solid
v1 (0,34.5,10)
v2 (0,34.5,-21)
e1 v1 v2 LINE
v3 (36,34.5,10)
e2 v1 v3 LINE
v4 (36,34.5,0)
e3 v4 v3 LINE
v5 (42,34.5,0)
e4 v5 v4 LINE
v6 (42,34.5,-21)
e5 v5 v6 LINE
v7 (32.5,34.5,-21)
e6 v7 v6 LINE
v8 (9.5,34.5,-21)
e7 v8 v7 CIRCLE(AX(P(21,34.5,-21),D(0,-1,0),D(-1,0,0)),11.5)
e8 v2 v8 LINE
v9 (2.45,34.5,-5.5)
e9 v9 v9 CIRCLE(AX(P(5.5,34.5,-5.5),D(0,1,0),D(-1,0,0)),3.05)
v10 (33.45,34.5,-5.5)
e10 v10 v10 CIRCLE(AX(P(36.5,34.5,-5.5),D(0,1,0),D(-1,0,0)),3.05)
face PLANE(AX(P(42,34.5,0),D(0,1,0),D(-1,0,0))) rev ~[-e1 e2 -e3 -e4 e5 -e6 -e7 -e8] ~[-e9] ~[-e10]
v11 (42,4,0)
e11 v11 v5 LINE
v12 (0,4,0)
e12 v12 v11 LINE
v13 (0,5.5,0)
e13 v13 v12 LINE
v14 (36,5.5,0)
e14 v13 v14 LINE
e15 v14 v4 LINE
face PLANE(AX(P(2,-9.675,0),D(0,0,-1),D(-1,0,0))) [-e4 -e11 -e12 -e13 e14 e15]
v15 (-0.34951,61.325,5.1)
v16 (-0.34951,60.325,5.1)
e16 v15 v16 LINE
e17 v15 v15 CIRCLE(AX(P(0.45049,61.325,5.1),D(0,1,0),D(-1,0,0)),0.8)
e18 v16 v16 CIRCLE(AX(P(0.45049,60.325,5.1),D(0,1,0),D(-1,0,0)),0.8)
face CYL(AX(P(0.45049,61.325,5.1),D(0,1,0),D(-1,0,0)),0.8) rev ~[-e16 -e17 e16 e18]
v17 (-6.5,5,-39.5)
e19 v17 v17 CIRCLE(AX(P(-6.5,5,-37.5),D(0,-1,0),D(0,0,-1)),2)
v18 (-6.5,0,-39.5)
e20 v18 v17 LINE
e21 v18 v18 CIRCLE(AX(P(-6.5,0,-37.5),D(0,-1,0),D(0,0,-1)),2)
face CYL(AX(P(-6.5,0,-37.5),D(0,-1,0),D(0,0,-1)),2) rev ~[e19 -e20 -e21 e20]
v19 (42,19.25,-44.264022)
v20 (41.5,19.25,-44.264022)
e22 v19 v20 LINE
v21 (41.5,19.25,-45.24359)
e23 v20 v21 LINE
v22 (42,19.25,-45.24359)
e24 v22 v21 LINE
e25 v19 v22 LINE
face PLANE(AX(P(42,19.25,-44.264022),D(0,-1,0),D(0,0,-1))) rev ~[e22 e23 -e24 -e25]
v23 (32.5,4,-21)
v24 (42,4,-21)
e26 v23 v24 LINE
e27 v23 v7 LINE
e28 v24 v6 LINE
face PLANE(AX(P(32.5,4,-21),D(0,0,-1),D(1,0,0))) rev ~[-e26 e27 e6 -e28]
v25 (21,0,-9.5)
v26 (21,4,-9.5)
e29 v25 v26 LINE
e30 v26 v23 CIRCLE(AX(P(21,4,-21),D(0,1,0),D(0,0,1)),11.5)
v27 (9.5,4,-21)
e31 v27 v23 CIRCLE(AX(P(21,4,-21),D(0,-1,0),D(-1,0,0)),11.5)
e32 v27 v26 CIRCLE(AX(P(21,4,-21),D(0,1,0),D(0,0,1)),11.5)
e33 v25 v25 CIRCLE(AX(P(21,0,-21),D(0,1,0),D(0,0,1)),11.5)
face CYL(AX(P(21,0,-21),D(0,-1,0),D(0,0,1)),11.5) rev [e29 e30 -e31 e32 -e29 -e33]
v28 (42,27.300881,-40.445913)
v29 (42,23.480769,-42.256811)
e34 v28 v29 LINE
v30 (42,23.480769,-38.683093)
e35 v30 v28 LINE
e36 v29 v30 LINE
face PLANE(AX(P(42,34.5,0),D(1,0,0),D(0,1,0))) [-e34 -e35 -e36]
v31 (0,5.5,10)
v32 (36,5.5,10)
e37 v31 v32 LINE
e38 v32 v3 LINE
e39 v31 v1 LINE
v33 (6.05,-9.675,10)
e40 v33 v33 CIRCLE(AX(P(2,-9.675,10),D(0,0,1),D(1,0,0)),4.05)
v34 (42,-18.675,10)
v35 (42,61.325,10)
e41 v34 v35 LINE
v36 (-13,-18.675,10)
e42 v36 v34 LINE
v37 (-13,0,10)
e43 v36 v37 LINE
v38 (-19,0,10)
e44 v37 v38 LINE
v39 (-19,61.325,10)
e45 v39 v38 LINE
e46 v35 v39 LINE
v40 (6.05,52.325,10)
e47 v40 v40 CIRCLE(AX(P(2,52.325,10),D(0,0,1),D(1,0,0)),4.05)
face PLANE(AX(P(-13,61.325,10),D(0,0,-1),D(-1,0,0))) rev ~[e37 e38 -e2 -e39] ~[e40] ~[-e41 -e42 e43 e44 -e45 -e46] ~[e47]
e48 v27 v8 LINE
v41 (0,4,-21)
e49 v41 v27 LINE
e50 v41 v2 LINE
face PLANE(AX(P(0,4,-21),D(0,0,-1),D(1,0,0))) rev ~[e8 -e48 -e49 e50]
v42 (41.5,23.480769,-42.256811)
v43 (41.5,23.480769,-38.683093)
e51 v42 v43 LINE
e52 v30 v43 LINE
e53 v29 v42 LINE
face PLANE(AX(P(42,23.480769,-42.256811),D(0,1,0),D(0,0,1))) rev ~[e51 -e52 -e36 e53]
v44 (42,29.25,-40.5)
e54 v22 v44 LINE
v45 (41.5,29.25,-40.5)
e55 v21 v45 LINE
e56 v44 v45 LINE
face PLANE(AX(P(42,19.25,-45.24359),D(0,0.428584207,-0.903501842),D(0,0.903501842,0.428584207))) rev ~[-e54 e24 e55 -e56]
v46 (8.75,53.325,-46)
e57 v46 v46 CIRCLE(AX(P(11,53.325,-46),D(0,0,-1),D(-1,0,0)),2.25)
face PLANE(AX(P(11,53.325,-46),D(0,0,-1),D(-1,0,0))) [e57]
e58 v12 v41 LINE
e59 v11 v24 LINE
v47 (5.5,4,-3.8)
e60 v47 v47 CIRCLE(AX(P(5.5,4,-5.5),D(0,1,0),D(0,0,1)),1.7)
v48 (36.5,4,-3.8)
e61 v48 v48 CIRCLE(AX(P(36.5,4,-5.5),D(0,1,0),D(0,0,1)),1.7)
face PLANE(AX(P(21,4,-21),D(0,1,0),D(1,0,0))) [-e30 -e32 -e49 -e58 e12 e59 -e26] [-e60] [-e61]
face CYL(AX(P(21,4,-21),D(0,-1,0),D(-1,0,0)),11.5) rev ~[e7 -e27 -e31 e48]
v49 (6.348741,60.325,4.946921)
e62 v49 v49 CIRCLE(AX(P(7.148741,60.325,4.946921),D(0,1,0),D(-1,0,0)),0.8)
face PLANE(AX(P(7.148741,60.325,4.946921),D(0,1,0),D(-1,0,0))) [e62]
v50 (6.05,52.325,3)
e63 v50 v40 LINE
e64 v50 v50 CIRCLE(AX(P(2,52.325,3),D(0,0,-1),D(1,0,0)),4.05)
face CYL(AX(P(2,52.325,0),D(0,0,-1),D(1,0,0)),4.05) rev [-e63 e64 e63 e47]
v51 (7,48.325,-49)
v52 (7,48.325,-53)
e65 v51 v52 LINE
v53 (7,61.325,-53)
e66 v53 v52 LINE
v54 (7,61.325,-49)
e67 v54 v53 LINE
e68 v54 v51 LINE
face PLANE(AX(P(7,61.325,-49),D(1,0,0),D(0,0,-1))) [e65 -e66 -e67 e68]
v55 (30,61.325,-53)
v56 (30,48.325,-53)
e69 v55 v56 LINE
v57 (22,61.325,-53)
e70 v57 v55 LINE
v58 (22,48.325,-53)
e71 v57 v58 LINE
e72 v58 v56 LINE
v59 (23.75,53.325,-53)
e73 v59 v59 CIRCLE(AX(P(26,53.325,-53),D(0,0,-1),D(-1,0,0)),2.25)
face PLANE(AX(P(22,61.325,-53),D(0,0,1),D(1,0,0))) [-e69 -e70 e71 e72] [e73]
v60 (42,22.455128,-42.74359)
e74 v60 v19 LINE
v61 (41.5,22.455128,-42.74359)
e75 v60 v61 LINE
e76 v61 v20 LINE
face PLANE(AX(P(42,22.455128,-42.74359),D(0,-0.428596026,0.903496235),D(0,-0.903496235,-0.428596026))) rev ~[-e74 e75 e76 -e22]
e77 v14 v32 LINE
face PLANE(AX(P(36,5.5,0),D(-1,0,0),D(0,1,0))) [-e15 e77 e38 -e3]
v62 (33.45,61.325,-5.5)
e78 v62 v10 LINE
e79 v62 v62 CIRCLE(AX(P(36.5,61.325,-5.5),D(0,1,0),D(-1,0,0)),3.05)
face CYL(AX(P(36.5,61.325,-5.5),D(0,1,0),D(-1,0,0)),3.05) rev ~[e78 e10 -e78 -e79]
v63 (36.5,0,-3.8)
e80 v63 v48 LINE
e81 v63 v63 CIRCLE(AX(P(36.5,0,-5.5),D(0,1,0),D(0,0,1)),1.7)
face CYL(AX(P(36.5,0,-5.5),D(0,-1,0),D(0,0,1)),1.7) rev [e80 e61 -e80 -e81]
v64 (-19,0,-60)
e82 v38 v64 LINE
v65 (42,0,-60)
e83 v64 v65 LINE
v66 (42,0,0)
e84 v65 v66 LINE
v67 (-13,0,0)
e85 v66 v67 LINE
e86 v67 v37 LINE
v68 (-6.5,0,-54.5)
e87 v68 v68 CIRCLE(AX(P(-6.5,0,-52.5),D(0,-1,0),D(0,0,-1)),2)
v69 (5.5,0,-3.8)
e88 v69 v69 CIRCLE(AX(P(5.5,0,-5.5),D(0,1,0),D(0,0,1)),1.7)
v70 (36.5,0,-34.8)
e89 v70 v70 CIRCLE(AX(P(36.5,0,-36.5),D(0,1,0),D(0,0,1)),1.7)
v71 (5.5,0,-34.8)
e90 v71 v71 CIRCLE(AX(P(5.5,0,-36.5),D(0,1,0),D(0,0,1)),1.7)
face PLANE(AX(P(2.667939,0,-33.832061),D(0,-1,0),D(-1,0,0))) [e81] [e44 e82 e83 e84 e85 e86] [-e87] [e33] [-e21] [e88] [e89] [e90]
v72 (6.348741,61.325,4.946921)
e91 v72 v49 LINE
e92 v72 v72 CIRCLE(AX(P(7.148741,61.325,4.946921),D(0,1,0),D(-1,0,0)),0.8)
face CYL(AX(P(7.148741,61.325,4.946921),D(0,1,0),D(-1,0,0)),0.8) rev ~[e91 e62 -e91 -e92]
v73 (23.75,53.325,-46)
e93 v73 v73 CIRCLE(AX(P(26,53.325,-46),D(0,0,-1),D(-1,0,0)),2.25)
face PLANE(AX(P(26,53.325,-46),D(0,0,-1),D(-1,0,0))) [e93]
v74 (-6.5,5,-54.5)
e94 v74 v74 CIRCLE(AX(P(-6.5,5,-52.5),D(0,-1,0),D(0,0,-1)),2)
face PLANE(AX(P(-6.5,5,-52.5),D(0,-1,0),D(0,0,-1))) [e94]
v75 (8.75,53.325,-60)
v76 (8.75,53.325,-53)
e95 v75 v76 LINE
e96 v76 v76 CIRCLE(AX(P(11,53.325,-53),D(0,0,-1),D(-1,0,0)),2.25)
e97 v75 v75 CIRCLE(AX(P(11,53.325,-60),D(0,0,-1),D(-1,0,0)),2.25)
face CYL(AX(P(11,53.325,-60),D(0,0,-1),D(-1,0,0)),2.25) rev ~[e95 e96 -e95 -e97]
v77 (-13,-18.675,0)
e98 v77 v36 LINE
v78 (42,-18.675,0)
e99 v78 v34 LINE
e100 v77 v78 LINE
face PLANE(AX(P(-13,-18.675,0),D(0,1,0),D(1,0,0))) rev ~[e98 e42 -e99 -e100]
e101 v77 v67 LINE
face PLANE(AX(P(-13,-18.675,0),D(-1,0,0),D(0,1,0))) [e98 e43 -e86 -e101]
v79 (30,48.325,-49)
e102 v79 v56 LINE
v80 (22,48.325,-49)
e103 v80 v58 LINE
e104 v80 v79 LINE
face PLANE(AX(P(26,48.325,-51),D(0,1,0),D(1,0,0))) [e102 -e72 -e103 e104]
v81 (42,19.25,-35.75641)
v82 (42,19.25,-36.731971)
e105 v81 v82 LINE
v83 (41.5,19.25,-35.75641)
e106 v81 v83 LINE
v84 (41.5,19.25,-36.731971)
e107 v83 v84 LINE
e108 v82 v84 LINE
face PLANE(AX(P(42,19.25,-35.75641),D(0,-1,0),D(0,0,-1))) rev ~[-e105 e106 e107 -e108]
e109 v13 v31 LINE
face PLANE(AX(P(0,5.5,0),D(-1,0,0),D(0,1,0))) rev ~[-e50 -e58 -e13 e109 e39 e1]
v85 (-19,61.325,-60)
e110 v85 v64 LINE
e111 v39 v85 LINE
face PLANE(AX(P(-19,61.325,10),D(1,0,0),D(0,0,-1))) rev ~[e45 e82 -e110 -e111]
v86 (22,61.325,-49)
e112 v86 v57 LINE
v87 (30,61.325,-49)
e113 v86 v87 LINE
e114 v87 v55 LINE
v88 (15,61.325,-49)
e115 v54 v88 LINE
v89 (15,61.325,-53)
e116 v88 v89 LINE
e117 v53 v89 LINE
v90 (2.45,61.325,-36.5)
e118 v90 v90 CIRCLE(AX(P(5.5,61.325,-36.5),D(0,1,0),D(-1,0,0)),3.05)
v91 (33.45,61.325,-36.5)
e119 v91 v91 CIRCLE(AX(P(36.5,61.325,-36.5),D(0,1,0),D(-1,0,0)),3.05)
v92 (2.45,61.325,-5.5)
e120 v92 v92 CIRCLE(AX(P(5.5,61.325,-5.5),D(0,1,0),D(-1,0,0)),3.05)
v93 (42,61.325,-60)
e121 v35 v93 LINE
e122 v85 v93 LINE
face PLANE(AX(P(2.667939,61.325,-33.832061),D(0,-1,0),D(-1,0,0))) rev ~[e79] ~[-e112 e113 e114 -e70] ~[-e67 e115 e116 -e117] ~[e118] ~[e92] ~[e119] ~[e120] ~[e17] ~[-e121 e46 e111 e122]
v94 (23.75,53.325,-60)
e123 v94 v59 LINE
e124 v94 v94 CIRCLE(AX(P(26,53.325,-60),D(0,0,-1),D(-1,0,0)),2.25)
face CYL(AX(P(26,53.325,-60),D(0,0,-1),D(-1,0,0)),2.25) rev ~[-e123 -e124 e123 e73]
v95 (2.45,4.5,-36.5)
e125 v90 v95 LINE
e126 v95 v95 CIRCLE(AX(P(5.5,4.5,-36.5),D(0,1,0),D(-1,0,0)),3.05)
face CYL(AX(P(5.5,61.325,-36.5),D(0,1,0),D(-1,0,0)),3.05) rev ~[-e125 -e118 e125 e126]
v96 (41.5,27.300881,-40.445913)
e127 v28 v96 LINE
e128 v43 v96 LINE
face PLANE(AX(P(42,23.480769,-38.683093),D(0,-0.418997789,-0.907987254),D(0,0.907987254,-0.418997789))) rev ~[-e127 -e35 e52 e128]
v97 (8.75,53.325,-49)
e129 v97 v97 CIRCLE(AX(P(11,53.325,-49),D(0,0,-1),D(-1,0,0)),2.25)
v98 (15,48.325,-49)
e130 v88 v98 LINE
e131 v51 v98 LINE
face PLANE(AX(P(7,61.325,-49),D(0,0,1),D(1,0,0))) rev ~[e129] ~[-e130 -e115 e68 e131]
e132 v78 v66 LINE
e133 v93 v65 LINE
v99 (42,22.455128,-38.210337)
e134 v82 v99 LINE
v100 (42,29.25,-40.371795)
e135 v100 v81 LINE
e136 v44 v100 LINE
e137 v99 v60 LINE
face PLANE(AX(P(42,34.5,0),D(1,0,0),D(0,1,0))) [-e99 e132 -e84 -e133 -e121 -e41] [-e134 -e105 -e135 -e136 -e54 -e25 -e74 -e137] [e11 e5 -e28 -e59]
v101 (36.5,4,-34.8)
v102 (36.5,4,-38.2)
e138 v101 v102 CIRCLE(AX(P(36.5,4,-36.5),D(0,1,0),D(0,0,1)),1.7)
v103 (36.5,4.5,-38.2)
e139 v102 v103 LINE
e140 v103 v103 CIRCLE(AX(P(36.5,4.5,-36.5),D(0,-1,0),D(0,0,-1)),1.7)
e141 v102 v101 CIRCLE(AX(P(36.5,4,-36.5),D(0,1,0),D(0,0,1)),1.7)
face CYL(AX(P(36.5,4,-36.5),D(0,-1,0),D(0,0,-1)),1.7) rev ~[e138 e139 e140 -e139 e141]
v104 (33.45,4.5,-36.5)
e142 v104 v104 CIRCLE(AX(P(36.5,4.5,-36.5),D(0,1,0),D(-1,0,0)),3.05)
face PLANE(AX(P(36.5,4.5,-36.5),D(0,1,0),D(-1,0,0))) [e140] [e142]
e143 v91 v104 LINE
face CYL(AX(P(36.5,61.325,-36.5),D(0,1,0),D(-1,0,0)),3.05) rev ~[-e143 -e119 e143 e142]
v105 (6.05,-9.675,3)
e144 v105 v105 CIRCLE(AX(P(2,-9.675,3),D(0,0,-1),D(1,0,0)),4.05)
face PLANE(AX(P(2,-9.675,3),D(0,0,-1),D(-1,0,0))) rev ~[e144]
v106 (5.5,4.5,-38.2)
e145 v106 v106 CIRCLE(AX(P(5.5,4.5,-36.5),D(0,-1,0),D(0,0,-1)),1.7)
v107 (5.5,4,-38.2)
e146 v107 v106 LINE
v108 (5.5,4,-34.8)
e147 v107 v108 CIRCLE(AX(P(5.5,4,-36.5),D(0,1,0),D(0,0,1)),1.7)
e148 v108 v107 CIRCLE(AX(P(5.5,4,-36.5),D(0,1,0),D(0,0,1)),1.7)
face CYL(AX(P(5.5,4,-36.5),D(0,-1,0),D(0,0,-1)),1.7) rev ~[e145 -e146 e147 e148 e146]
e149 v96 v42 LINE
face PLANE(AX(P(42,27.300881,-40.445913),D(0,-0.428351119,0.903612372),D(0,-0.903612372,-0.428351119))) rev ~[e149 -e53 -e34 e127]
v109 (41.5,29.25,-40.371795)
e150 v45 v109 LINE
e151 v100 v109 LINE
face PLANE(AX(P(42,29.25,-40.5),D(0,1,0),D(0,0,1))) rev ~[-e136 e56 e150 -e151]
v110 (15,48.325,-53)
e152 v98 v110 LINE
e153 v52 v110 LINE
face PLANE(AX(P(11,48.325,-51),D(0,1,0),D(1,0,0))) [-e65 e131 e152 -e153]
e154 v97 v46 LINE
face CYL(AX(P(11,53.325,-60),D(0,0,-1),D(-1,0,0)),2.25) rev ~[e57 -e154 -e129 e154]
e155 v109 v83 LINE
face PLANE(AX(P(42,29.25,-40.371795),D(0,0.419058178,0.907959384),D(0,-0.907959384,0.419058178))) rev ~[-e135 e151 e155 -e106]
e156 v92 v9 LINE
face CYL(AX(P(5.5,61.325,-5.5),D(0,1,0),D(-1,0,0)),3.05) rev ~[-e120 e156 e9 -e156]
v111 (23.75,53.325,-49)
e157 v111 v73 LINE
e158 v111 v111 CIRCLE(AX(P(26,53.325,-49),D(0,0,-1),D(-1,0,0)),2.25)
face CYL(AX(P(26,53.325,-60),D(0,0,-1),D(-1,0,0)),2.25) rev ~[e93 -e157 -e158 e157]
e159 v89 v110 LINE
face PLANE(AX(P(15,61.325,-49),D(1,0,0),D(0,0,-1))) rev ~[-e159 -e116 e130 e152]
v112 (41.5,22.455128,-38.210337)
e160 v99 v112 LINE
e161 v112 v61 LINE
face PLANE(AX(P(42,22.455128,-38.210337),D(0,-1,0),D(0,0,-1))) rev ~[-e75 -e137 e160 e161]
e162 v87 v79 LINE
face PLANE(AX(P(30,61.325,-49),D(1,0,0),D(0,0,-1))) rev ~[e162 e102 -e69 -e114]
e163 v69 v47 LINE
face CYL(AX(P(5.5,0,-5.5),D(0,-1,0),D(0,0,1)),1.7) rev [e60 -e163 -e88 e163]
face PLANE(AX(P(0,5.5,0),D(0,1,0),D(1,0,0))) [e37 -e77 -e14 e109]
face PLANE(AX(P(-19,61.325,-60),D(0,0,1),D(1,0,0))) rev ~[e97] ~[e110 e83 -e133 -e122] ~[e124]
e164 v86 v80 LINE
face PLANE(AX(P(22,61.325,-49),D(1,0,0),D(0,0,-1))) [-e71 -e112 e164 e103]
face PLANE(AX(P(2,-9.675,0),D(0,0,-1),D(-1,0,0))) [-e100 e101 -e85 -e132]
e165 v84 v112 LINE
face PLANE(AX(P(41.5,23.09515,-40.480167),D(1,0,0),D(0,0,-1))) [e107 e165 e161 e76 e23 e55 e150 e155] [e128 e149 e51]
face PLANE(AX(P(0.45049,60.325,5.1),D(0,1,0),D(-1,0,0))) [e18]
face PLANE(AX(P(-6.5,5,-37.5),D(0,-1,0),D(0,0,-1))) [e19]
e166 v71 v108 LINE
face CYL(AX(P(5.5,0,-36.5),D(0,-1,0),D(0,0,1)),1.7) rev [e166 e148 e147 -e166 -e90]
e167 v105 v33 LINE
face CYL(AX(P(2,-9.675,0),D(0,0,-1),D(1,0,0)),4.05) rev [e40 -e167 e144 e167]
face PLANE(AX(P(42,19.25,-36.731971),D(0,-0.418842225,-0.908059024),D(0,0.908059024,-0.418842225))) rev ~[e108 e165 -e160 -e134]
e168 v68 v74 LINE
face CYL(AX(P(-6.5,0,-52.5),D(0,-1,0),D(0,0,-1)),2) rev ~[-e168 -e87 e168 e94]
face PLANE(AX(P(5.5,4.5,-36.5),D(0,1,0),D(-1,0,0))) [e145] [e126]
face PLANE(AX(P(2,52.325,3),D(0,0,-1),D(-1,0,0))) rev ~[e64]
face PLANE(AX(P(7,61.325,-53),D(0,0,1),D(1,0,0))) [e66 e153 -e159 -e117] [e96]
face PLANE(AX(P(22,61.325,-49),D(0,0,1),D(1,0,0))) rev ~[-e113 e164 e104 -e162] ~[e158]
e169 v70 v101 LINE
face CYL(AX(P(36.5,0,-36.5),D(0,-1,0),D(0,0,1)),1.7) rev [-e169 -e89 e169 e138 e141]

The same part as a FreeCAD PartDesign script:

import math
import FreeCAD as App
import Part
import Sketcher
from FreeCAD import Vector


def add_polygon(sketch, points):
    """Adds a closed chain of lines whose ends are joined by coincident constraints."""
    first, n = sketch.GeometryCount, len(points)
    for a, b in zip(points, points[1:] + points[:1]):
        sketch.addGeometry(Part.LineSegment(App.Vector(*a, 0), App.Vector(*b, 0)), False)
    for i in range(n):
        sketch.addConstraint(Sketcher.Constraint("Coincident", first + i, 2, first + (i + 1) % n, 1))

doc = App.newDocument("Part")
params = doc.addObject("Spreadsheet::Sheet", "Params")
for row, (alias, value) in enumerate([
    ("sketch1_diameter", "23 mm"),
    ("sketch1_diameter2", "3.4 mm"),
    ("sketch1_width", "42 mm"),
    ("pad1_length", "4 mm"),
    ("sketch2_diameter", "8.1 mm"),
    ("sketch2_width", "55 mm"),
    ("sketch2_width2", "36 mm"),
    ("sketch2_height", "80 mm"),
    ("sketch2_height2", "29 mm"),
    ("pad2_length", "10 mm"),
    ("sketch3_radius", "11.5 mm"),
    ("sketch3_width", "42 mm"),
    ("sketch3_height", "21 mm"),
    ("pad3_length", "30.5 mm"),
    ("sketch4_width", "42 mm"),
    ("pad4_length", "42 mm"),
    ("sketch5_diameter", "3.4 mm"),
    ("sketch6_diameter", "6.1 mm"),
    ("pocket2_length", "56.825 mm"),
    ("sketch7_diameter", "8.1 mm"),
    ("pad5_length", "3 mm"),
    ("sketch8_diameter", "1.6 mm"),
    ("pocket3_length", "1 mm"),
    ("sketch9_width", "6 mm"),
    ("sketch9_width2", "13 mm"),
    ("sketch9_width3", "42 mm"),
    ("sketch9_height", "10 mm"),
    ("sketch9_height2", "18 mm"),
    ("pad6_length", "61.325 mm"),
    ("sketch10_diameter", "4 mm"),
    ("pocket4_length", "5 mm"),
    ("sketch11_diameter", "4.5 mm"),
    ("pocket5_length", "14 mm"),
    ("sketch12_width", "8 mm"),
    ("sketch12_height", "4 mm"),
    ("pocket6_length", "13 mm"),
    ("pocket7_length", "0.5 mm"),
], start=1):
    params.set(f"A{row}", alias)
    params.set(f"B{row}", "=" + value)
    params.setAlias(f"B{row}", alias)

body = doc.addObject("PartDesign::Body", "Body")

# Sketch on XZ plane
sketch1 = doc.addObject("Sketcher::SketchObject", "Sketch")
body.addObject(sketch1)
sketch1.AttachmentSupport = (doc.XZ_Plane, [""])
sketch1.MapMode = "FlatFace"
add_polygon(sketch1, [(0, -42), (0, 0), (42, 0), (42, -42)])  # lines 0-3
sketch1.addGeometry(Part.Circle(Vector(5.5, -5.5, 0), Vector(0, 0, 1), 1.7), False)  # 4
sketch1.addGeometry(Part.Circle(Vector(36.5, -5.5, 0), Vector(0, 0, 1), 1.7), False)  # 5
sketch1.addGeometry(Part.Circle(Vector(5.5, -36.5, 0), Vector(0, 0, 1), 1.7), False)  # 6
sketch1.addGeometry(Part.Circle(Vector(21, -21, 0), Vector(0, 0, 1), 11.5), False)  # 7
sketch1.addGeometry(Part.Circle(Vector(36.5, -36.5, 0), Vector(0, 0, 1), 1.7), False)  # 8
sketch1.addConstraint(Sketcher.Constraint("Vertical", 0))
sketch1.addConstraint(Sketcher.Constraint("Horizontal", 1))
sketch1.addConstraint(Sketcher.Constraint("Vertical", 2))
sketch1.addConstraint(Sketcher.Constraint("Horizontal", 3))
sketch1.addConstraint(Sketcher.Constraint("Coincident", 0, 2, -1, 1))
sketch1.addConstraint(Sketcher.Constraint("Equal", 4, 5))
sketch1.addConstraint(Sketcher.Constraint("Equal", 5, 6))
sketch1.addConstraint(Sketcher.Constraint("Equal", 6, 8))
sketch1.addConstraint(Sketcher.Constraint("Horizontal", 4, 3, 5, 3))
sketch1.addConstraint(Sketcher.Constraint("Horizontal", 6, 3, 8, 3))
sketch1.addConstraint(Sketcher.Constraint("Vertical", 4, 3, 6, 3))
sketch1.addConstraint(Sketcher.Constraint("Vertical", 5, 3, 8, 3))
sketch1.addConstraint(Sketcher.Constraint("Equal", 3, 0))
sketch1.addConstraint(Sketcher.Constraint("Diameter", 7, 23.0))
sketch1.addConstraint(Sketcher.Constraint("Diameter", 4, 3.4))
sketch1.addConstraint(Sketcher.Constraint("DistanceX", 1, 1, 1, 2, 42.0))
sketch1.addConstraint(Sketcher.Constraint("DistanceX", -1, 1, 7, 3, 21.0))
sketch1.addConstraint(Sketcher.Constraint("DistanceY", 7, 3, -1, 1, 21.0))
sketch1.addConstraint(Sketcher.Constraint("DistanceX", 4, 3, 5, 3, 31.0))
sketch1.addConstraint(Sketcher.Constraint("DistanceY", 6, 3, 4, 3, 31.0))
sketch1.addConstraint(Sketcher.Constraint("DistanceX", -1, 1, 4, 3, 5.5))
sketch1.addConstraint(Sketcher.Constraint("DistanceY", 4, 3, -1, 1, 5.5))
sketch1.setExpression("Constraints[17]", "Params.sketch1_diameter")
sketch1.setExpression("Constraints[18]", "Params.sketch1_diameter2")
sketch1.setExpression("Constraints[19]", "Params.sketch1_width")
pad1 = doc.addObject("PartDesign::Pad", "Pad")
body.addObject(pad1)
pad1.Profile = sketch1
pad1.setExpression("Length", "Params.pad1_length")
pad1.Reversed = True

# Sketch on XY plane
sketch2 = doc.addObject("Sketcher::SketchObject", "Sketch001")
body.addObject(sketch2)
sketch2.AttachmentSupport = (doc.XY_Plane, [""])
sketch2.MapMode = "FlatFace"
add_polygon(sketch2, [(-13, 61.3), (-13, -18.7), (42, -18.7), (42, 61.3)])  # lines 0-3
sketch2.addGeometry(Part.Circle(Vector(2, -9.7, 0), Vector(0, 0, 1), 4), False)  # 4
add_polygon(sketch2, [(36, 5.5), (0, 5.5), (0, 34.5), (36, 34.5)])  # lines 5-8
sketch2.addGeometry(Part.Circle(Vector(2, 52.3, 0), Vector(0, 0, 1), 4), False)  # 9
sketch2.addConstraint(Sketcher.Constraint("Vertical", 0))
sketch2.addConstraint(Sketcher.Constraint("Horizontal", 1))
sketch2.addConstraint(Sketcher.Constraint("Vertical", 2))
sketch2.addConstraint(Sketcher.Constraint("Horizontal", 3))
sketch2.addConstraint(Sketcher.Constraint("Horizontal", 5))
sketch2.addConstraint(Sketcher.Constraint("Vertical", 6))
sketch2.addConstraint(Sketcher.Constraint("Horizontal", 7))
sketch2.addConstraint(Sketcher.Constraint("Vertical", 8))
sketch2.addConstraint(Sketcher.Constraint("Equal", 4, 9))
sketch2.addConstraint(Sketcher.Constraint("PointOnObject", 5, 2, -2))
sketch2.addConstraint(Sketcher.Constraint("Vertical", 4, 3, 9, 3))
sketch2.addConstraint(Sketcher.Constraint("Diameter", 4, 8.1))
sketch2.addConstraint(Sketcher.Constraint("DistanceX", 1, 1, 1, 2, 55.0))
sketch2.addConstraint(Sketcher.Constraint("DistanceX", 5, 2, 5, 1, 36.0))
sketch2.addConstraint(Sketcher.Constraint("DistanceY", 0, 2, 0, 1, 80.0))
sketch2.addConstraint(Sketcher.Constraint("DistanceY", 6, 1, 6, 2, 29.0))
sketch2.addConstraint(Sketcher.Constraint("DistanceX", -1, 1, 4, 3, 2.0))
sketch2.addConstraint(Sketcher.Constraint("DistanceX", 0, 2, -1, 1, 13.0))
sketch2.addConstraint(Sketcher.Constraint("DistanceY", 4, 3, 9, 3, 62.0))
sketch2.addConstraint(Sketcher.Constraint("DistanceY", 0, 2, 4, 3, 9.0))
sketch2.addConstraint(Sketcher.Constraint("DistanceY", -1, 1, 5, 2, 5.5))
sketch2.addConstraint(Sketcher.Constraint("DistanceY", 4, 3, -1, 1, 9.675))
sketch2.setExpression("Constraints[19]", "Params.sketch2_diameter")
sketch2.setExpression("Constraints[20]", "Params.sketch2_width")
sketch2.setExpression("Constraints[21]", "Params.sketch2_width2")
sketch2.setExpression("Constraints[22]", "Params.sketch2_height")
sketch2.setExpression("Constraints[23]", "Params.sketch2_height2")
pad2 = doc.addObject("PartDesign::Pad", "Pad001")
body.addObject(pad2)
pad2.Profile = sketch2
pad2.setExpression("Length", "Params.pad2_length")

# Sketch on XZ plane
sketch3 = doc.addObject("Sketcher::SketchObject", "Sketch002")
body.addObject(sketch3)
sketch3.AttachmentSupport = (doc.XZ_Plane, [""])
sketch3.MapMode = "FlatFace"
sketch3.AttachmentOffset = App.Placement(Vector(0, 0, -4), App.Rotation())
sketch3.addGeometry(Part.LineSegment(Vector(0, -21, 0), Vector(10, -21, 0)), False)
sketch3.addGeometry(Part.ArcOfCircle(Part.Circle(Vector(21, -21, 0), Vector(0, 0, 1), 12), math.radians(180), math.radians(360)), False)
sketch3.addGeometry(Part.LineSegment(Vector(32, -21, 0), Vector(42, -21, 0)), False)
sketch3.addGeometry(Part.LineSegment(Vector(42, -21, 0), Vector(42, -42, 0)), False)
sketch3.addGeometry(Part.LineSegment(Vector(42, -42, 0), Vector(0, -42, 0)), False)
sketch3.addGeometry(Part.LineSegment(Vector(0, -42, 0), Vector(0, -21, 0)), False)
sketch3.addConstraint(Sketcher.Constraint("Coincident", 0, 2, 1, 1))
sketch3.addConstraint(Sketcher.Constraint("Coincident", 1, 2, 2, 1))
sketch3.addConstraint(Sketcher.Constraint("Coincident", 2, 2, 3, 1))
sketch3.addConstraint(Sketcher.Constraint("Coincident", 3, 2, 4, 1))
sketch3.addConstraint(Sketcher.Constraint("Coincident", 4, 2, 5, 1))
sketch3.addConstraint(Sketcher.Constraint("Coincident", 5, 2, 0, 1))
sketch3.addConstraint(Sketcher.Constraint("Horizontal", 0))
sketch3.addConstraint(Sketcher.Constraint("Horizontal", 2))
sketch3.addConstraint(Sketcher.Constraint("Vertical", 3))
sketch3.addConstraint(Sketcher.Constraint("Horizontal", 4))
sketch3.addConstraint(Sketcher.Constraint("Vertical", 5))
sketch3.addConstraint(Sketcher.Constraint("PointOnObject", 4, 2, -2))
sketch3.addConstraint(Sketcher.Constraint("Horizontal", 1, 3, 0, 2))
sketch3.addConstraint(Sketcher.Constraint("Horizontal", 0, 2, 1, 2))
sketch3.addConstraint(Sketcher.Constraint("Equal", 0, 2))
sketch3.addConstraint(Sketcher.Constraint("Radius", 1, 11.5))
sketch3.addConstraint(Sketcher.Constraint("DistanceX", 4, 2, 4, 1, 42.0))
sketch3.addConstraint(Sketcher.Constraint("DistanceY", 3, 2, 3, 1, 21.0))
sketch3.addConstraint(Sketcher.Constraint("DistanceY", 1, 3, -1, 1, 21.0))
sketch3.setExpression("Constraints[15]", "Params.sketch3_radius")
sketch3.setExpression("Constraints[16]", "Params.sketch3_width")
sketch3.setExpression("Constraints[17]", "Params.sketch3_height")
pad3 = doc.addObject("PartDesign::Pad", "Pad002")
body.addObject(pad3)
pad3.Profile = sketch3
pad3.setExpression("Length", "Params.pad3_length")
pad3.Reversed = True

# Sketch on XY plane
sketch4 = doc.addObject("Sketcher::SketchObject", "Sketch003")
body.addObject(sketch4)
sketch4.AttachmentSupport = (doc.XY_Plane, [""])
sketch4.MapMode = "FlatFace"
add_polygon(sketch4, [(42, 61), (42, 34), (0, 34), (0, 61)])  # lines 0-3
sketch4.addConstraint(Sketcher.Constraint("Vertical", 0))
sketch4.addConstraint(Sketcher.Constraint("Horizontal", 1))
sketch4.addConstraint(Sketcher.Constraint("Vertical", 2))
sketch4.addConstraint(Sketcher.Constraint("Horizontal", 3))
sketch4.addConstraint(Sketcher.Constraint("PointOnObject", 1, 2, -2))
sketch4.addConstraint(Sketcher.Constraint("DistanceX", 1, 2, 1, 1, 42.0))
sketch4.addConstraint(Sketcher.Constraint("DistanceY", -1, 1, 0, 2, 34.5))
sketch4.addConstraint(Sketcher.Constraint("DistanceY", 0, 2, 0, 1, 26.825))
sketch4.setExpression("Constraints[9]", "Params.sketch4_width")
pad4 = doc.addObject("PartDesign::Pad", "Pad003")
body.addObject(pad4)
pad4.Profile = sketch4
pad4.setExpression("Length", "Params.pad4_length")
pad4.Reversed = True

# Sketch on XZ plane
sketch5 = doc.addObject("Sketcher::SketchObject", "Sketch004")
body.addObject(sketch5)
sketch5.AttachmentSupport = (doc.XZ_Plane, [""])
sketch5.MapMode = "FlatFace"
sketch5.AttachmentOffset = App.Placement(Vector(0, 0, -4), App.Rotation())
sketch5.addGeometry(Part.Circle(Vector(5.5, -36.5, 0), Vector(0, 0, 1), 1.7), False)
sketch5.addGeometry(Part.Circle(Vector(36.5, -36.5, 0), Vector(0, 0, 1), 1.7), False)
sketch5.addConstraint(Sketcher.Constraint("Equal", 0, 1))
sketch5.addConstraint(Sketcher.Constraint("Horizontal", 0, 3, 1, 3))
sketch5.addConstraint(Sketcher.Constraint("Diameter", 0, 3.4))
sketch5.addConstraint(Sketcher.Constraint("DistanceX", 0, 3, 1, 3, 31.0))
sketch5.addConstraint(Sketcher.Constraint("DistanceX", -1, 1, 0, 3, 5.5))
sketch5.addConstraint(Sketcher.Constraint("DistanceY", 0, 3, -1, 1, 36.5))
sketch5.setExpression("Constraints[2]", "Params.sketch5_diameter")
pocket1 = doc.addObject("PartDesign::Pocket", "Pocket")
body.addObject(pocket1)
pocket1.Profile = sketch5
pocket1.Type = "ThroughAll"

# Sketch on XZ plane
sketch6 = doc.addObject("Sketcher::SketchObject", "Sketch005")
body.addObject(sketch6)
sketch6.AttachmentSupport = (doc.XZ_Plane, [""])
sketch6.MapMode = "FlatFace"
sketch6.AttachmentOffset = App.Placement(Vector(0, 0, -61.325), App.Rotation())
sketch6.addGeometry(Part.Circle(Vector(5.5, -36.5, 0), Vector(0, 0, 1), 3), False)
sketch6.addGeometry(Part.Circle(Vector(36.5, -36.5, 0), Vector(0, 0, 1), 3), False)
sketch6.addGeometry(Part.Circle(Vector(5.5, -5.5, 0), Vector(0, 0, 1), 3), False)
sketch6.addGeometry(Part.Circle(Vector(36.5, -5.5, 0), Vector(0, 0, 1), 3), False)
sketch6.addConstraint(Sketcher.Constraint("Equal", 0, 1))
sketch6.addConstraint(Sketcher.Constraint("Equal", 1, 2))
sketch6.addConstraint(Sketcher.Constraint("Equal", 2, 3))
sketch6.addConstraint(Sketcher.Constraint("Horizontal", 0, 3, 1, 3))
sketch6.addConstraint(Sketcher.Constraint("Horizontal", 2, 3, 3, 3))
sketch6.addConstraint(Sketcher.Constraint("Vertical", 0, 3, 2, 3))
sketch6.addConstraint(Sketcher.Constraint("Vertical", 1, 3, 3, 3))
sketch6.addConstraint(Sketcher.Constraint("Diameter", 0, 6.1))
sketch6.addConstraint(Sketcher.Constraint("DistanceX", 0, 3, 1, 3, 31.0))
sketch6.addConstraint(Sketcher.Constraint("DistanceY", 0, 3, 2, 3, 31.0))
sketch6.addConstraint(Sketcher.Constraint("DistanceX", -1, 1, 0, 3, 5.5))
sketch6.addConstraint(Sketcher.Constraint("DistanceY", 0, 3, -1, 1, 36.5))
sketch6.setExpression("Constraints[7]", "Params.sketch6_diameter")
pocket2 = doc.addObject("PartDesign::Pocket", "Pocket001")
body.addObject(pocket2)
pocket2.Profile = sketch6
pocket2.setExpression("Length", "Params.pocket2_length")
pocket2.Reversed = True

# Sketch on XY plane
sketch7 = doc.addObject("Sketcher::SketchObject", "Sketch006")
body.addObject(sketch7)
sketch7.AttachmentSupport = (doc.XY_Plane, [""])
sketch7.MapMode = "FlatFace"
sketch7.addGeometry(Part.Circle(Vector(2, -9.7, 0), Vector(0, 0, 1), 4), False)
sketch7.addGeometry(Part.Circle(Vector(2, 52.3, 0), Vector(0, 0, 1), 4), False)
sketch7.addConstraint(Sketcher.Constraint("Equal", 0, 1))
sketch7.addConstraint(Sketcher.Constraint("Vertical", 0, 3, 1, 3))
sketch7.addConstraint(Sketcher.Constraint("Diameter", 0, 8.1))
sketch7.addConstraint(Sketcher.Constraint("DistanceX", -1, 1, 0, 3, 2.0))
sketch7.addConstraint(Sketcher.Constraint("DistanceY", 0, 3, 1, 3, 62.0))
sketch7.addConstraint(Sketcher.Constraint("DistanceY", 0, 3, -1, 1, 9.675))
sketch7.setExpression("Constraints[2]", "Params.sketch7_diameter")
pad5 = doc.addObject("PartDesign::Pad", "Pad004")
body.addObject(pad5)
pad5.Profile = sketch7
pad5.setExpression("Length", "Params.pad5_length")

# Sketch on XZ plane
sketch8 = doc.addObject("Sketcher::SketchObject", "Sketch007")
body.addObject(sketch8)
sketch8.AttachmentSupport = (doc.XZ_Plane, [""])
sketch8.MapMode = "FlatFace"
sketch8.AttachmentOffset = App.Placement(Vector(0, 0, -61.325), App.Rotation())
sketch8.addGeometry(Part.Circle(Vector(0.5, 5.1, 0), Vector(0, 0, 1), 0.8), False)
sketch8.addGeometry(Part.Circle(Vector(7.1, 4.9, 0), Vector(0, 0, 1), 0.8), False)
sketch8.addConstraint(Sketcher.Constraint("Equal", 0, 1))
sketch8.addConstraint(Sketcher.Constraint("Diameter", 0, 1.6))
sketch8.addConstraint(Sketcher.Constraint("DistanceY", -1, 1, 0, 3, 5.1))
sketch8.addConstraint(Sketcher.Constraint("DistanceX", -1, 1, 0, 3, 0.45049))
sketch8.addConstraint(Sketcher.Constraint("DistanceX", -1, 1, 1, 3, 7.148741))
sketch8.addConstraint(Sketcher.Constraint("DistanceY", -1, 1, 1, 3, 4.946921))
sketch8.setExpression("Constraints[1]", "Params.sketch8_diameter")
pocket3 = doc.addObject("PartDesign::Pocket", "Pocket002")
body.addObject(pocket3)
pocket3.Profile = sketch8
pocket3.setExpression("Length", "Params.pocket3_length")
pocket3.Reversed = True

# Sketch on XZ plane
sketch9 = doc.addObject("Sketcher::SketchObject", "Sketch008")
body.addObject(sketch9)
sketch9.AttachmentSupport = (doc.XZ_Plane, [""])
sketch9.MapMode = "FlatFace"
sketch9.AttachmentOffset = App.Placement(Vector(0, 0, -61.325), App.Rotation())
add_polygon(sketch9, [(-19, 10), (-13, 10), (-13, 0), (0, 0), (0, -42), (42, -42), (42, -60), (-19, -60)])  # lines 0-7
sketch9.addConstraint(Sketcher.Constraint("Horizontal", 0))
sketch9.addConstraint(Sketcher.Constraint("Vertical", 1))
sketch9.addConstraint(Sketcher.Constraint("Horizontal", 2))
sketch9.addConstraint(Sketcher.Constraint("Vertical", 3))
sketch9.addConstraint(Sketcher.Constraint("Horizontal", 4))
sketch9.addConstraint(Sketcher.Constraint("Vertical", 5))
sketch9.addConstraint(Sketcher.Constraint("Horizontal", 6))
sketch9.addConstraint(Sketcher.Constraint("Vertical", 7))
sketch9.addConstraint(Sketcher.Constraint("Coincident", 2, 2, -1, 1))
sketch9.addConstraint(Sketcher.Constraint("Equal", 4, 3))
sketch9.addConstraint(Sketcher.Constraint("DistanceX", 0, 1, 0, 2, 6.0))
sketch9.addConstraint(Sketcher.Constraint("DistanceX", 2, 1, 2, 2, 13.0))
sketch9.addConstraint(Sketcher.Constraint("DistanceX", 4, 1, 4, 2, 42.0))
sketch9.addConstraint(Sketcher.Constraint("DistanceY", 1, 2, 1, 1, 10.0))
sketch9.addConstraint(Sketcher.Constraint("DistanceY", 5, 2, 5, 1, 18.0))
sketch9.setExpression("Constraints[18]", "Params.sketch9_width")
sketch9.setExpression("Constraints[19]", "Params.sketch9_width2")
sketch9.setExpression("Constraints[20]", "Params.sketch9_width3")
sketch9.setExpression("Constraints[21]", "Params.sketch9_height")
sketch9.setExpression("Constraints[22]", "Params.sketch9_height2")
pad6 = doc.addObject("PartDesign::Pad", "Pad005")
body.addObject(pad6)
pad6.Profile = sketch9
pad6.setExpression("Length", "Params.pad6_length")

# Sketch on XZ plane
sketch10 = doc.addObject("Sketcher::SketchObject", "Sketch009")
body.addObject(sketch10)
sketch10.AttachmentSupport = (doc.XZ_Plane, [""])
sketch10.MapMode = "FlatFace"
sketch10.addGeometry(Part.Circle(Vector(-6.5, -52.5, 0), Vector(0, 0, 1), 2), False)
sketch10.addGeometry(Part.Circle(Vector(-6.5, -37.5, 0), Vector(0, 0, 1), 2), False)
sketch10.addConstraint(Sketcher.Constraint("Equal", 0, 1))
sketch10.addConstraint(Sketcher.Constraint("Vertical", 0, 3, 1, 3))
sketch10.addConstraint(Sketcher.Constraint("Diameter", 0, 4.0))
sketch10.addConstraint(Sketcher.Constraint("DistanceY", 0, 3, 1, 3, 15.0))
sketch10.addConstraint(Sketcher.Constraint("DistanceX", 0, 3, -1, 1, 6.5))
sketch10.addConstraint(Sketcher.Constraint("DistanceY", 0, 3, -1, 1, 52.5))
sketch10.setExpression("Constraints[2]", "Params.sketch10_diameter")
pocket4 = doc.addObject("PartDesign::Pocket", "Pocket003")
body.addObject(pocket4)
pocket4.Profile = sketch10
pocket4.setExpression("Length", "Params.pocket4_length")

# Sketch on XY plane
sketch11 = doc.addObject("Sketcher::SketchObject", "Sketch010")
body.addObject(sketch11)
sketch11.AttachmentSupport = (doc.XY_Plane, [""])
sketch11.MapMode = "FlatFace"
sketch11.AttachmentOffset = App.Placement(Vector(0, 0, -60), App.Rotation())
sketch11.addGeometry(Part.Circle(Vector(26, 53.3, 0), Vector(0, 0, 1), 2.2), False)
sketch11.addGeometry(Part.Circle(Vector(11, 53.3, 0), Vector(0, 0, 1), 2.2), False)
sketch11.addConstraint(Sketcher.Constraint("Equal", 0, 1))
sketch11.addConstraint(Sketcher.Constraint("Horizontal", 0, 3, 1, 3))
sketch11.addConstraint(Sketcher.Constraint("Diameter", 0, 4.5))
sketch11.addConstraint(Sketcher.Constraint("DistanceX", -1, 1, 0, 3, 26.0))
sketch11.addConstraint(Sketcher.Constraint("DistanceX", -1, 1, 1, 3, 11.0))
sketch11.addConstraint(Sketcher.Constraint("DistanceY", -1, 1, 0, 3, 53.325))
sketch11.setExpression("Constraints[2]", "Params.sketch11_diameter")
pocket5 = doc.addObject("PartDesign::Pocket", "Pocket004")
body.addObject(pocket5)
pocket5.Profile = sketch11
pocket5.setExpression("Length", "Params.pocket5_length")
pocket5.Reversed = True

# Sketch on XZ plane
sketch12 = doc.addObject("Sketcher::SketchObject", "Sketch011")
body.addObject(sketch12)
sketch12.AttachmentSupport = (doc.XZ_Plane, [""])
sketch12.MapMode = "FlatFace"
sketch12.AttachmentOffset = App.Placement(Vector(0, 0, -61.325), App.Rotation())
add_polygon(sketch12, [(7, -53), (7, -49), (15, -49), (15, -53)])  # lines 0-3
add_polygon(sketch12, [(22, -53), (22, -49), (30, -49), (30, -53)])  # lines 4-7
sketch12.addConstraint(Sketcher.Constraint("Vertical", 0))
sketch12.addConstraint(Sketcher.Constraint("Horizontal", 1))
sketch12.addConstraint(Sketcher.Constraint("Vertical", 2))
sketch12.addConstraint(Sketcher.Constraint("Horizontal", 3))
sketch12.addConstraint(Sketcher.Constraint("Vertical", 4))
sketch12.addConstraint(Sketcher.Constraint("Horizontal", 5))
sketch12.addConstraint(Sketcher.Constraint("Vertical", 6))
sketch12.addConstraint(Sketcher.Constraint("Horizontal", 7))
sketch12.addConstraint(Sketcher.Constraint("Horizontal", 1, 2, 4, 2))
sketch12.addConstraint(Sketcher.Constraint("Horizontal", 3, 2, 6, 2))
sketch12.addConstraint(Sketcher.Constraint("Equal", 3, 5))
sketch12.addConstraint(Sketcher.Constraint("DistanceX", 1, 1, 1, 2, 8.0))
sketch12.addConstraint(Sketcher.Constraint("DistanceY", 0, 1, 0, 2, 4.0))
sketch12.addConstraint(Sketcher.Constraint("DistanceX", -1, 1, 0, 2, 7.0))
sketch12.addConstraint(Sketcher.Constraint("DistanceY", 0, 2, -1, 1, 49.0))
sketch12.addConstraint(Sketcher.Constraint("DistanceX", -1, 1, 4, 2, 22.0))
sketch12.setExpression("Constraints[19]", "Params.sketch12_width")
sketch12.setExpression("Constraints[20]", "Params.sketch12_height")
pocket6 = doc.addObject("PartDesign::Pocket", "Pocket005")
body.addObject(pocket6)
pocket6.Profile = sketch12
pocket6.setExpression("Length", "Params.pocket6_length")
pocket6.Reversed = True

# Sketch on YZ plane
sketch13 = doc.addObject("Sketcher::SketchObject", "Sketch012")
body.addObject(sketch13)
sketch13.AttachmentSupport = (doc.YZ_Plane, [""])
sketch13.MapMode = "FlatFace"
sketch13.AttachmentOffset = App.Placement(Vector(0, 0, 42), App.Rotation())
add_polygon(sketch13, [(29.25, -40.37), (19.25, -35.76), (19.25, -36.73), (22.46, -38.21), (22.46, -42.74), (19.25, -44.26), (19.25, -45.24), (29.25, -40.5)])  # lines 0-7
add_polygon(sketch13, [(23.48, -38.68), (27.3, -40.45), (23.48, -42.26)])  # lines 8-10
sketch13.addConstraint(Sketcher.Constraint("Vertical", 1))
sketch13.addConstraint(Sketcher.Constraint("Vertical", 3))
sketch13.addConstraint(Sketcher.Constraint("Vertical", 5))
sketch13.addConstraint(Sketcher.Constraint("Vertical", 7))
sketch13.addConstraint(Sketcher.Constraint("Vertical", 10))
sketch13.addConstraint(Sketcher.Constraint("Vertical", 1, 2, 4, 2))
sketch13.addConstraint(Sketcher.Constraint("DistanceX", 4, 2, 6, 2, 10.0))
sketch13.addConstraint(Sketcher.Constraint("DistanceY", 6, 2, -1, 1, 40.5))
sketch13.addConstraint(Sketcher.Constraint("DistanceY", 5, 2, 3, 2, 2.5))
sketch13.addConstraint(Sketcher.Constraint("DistanceX", -1, 1, 0, 2, 19.25))
sketch13.addConstraint(Sketcher.Constraint("Distance", 9, 4.227601))
sketch13.addConstraint(Sketcher.Constraint("DistanceY", 1, 2, 1, 1, 0.975561))
sketch13.addConstraint(Sketcher.Constraint("Distance", 0, 11.013709))
sketch13.addConstraint(Sketcher.Constraint("Distance", 8, 4.207231))
sketch13.addConstraint(Sketcher.Constraint("DistanceY", 3, 2, 3, 1, 4.533253))
sketch13.addConstraint(Sketcher.Constraint("DistanceY", 5, 2, 5, 1, 0.979567))
sketch13.addConstraint(Sketcher.Constraint("DistanceY", 7, 1, 7, 2, 0.128205))
sketch13.addConstraint(Sketcher.Constraint("DistanceY", 10, 1, 10, 2, 3.573718))
sketch13.addConstraint(Sketcher.Constraint("DistanceX", -1, 1, 2, 2, 22.455128))
sketch13.addConstraint(Sketcher.Constraint("DistanceY", 3, 2, -1, 1, 42.74359))
sketch13.addConstraint(Sketcher.Constraint("DistanceX", -1, 1, 8, 2, 27.300881))
sketch13.addConstraint(Sketcher.Constraint("DistanceY", 9, 2, -1, 1, 42.256811))
pocket7 = doc.addObject("PartDesign::Pocket", "Pocket006")
body.addObject(pocket7)
pocket7.Profile = sketch13
pocket7.setExpression("Length", "Params.pocket7_length")

doc.recompute()
